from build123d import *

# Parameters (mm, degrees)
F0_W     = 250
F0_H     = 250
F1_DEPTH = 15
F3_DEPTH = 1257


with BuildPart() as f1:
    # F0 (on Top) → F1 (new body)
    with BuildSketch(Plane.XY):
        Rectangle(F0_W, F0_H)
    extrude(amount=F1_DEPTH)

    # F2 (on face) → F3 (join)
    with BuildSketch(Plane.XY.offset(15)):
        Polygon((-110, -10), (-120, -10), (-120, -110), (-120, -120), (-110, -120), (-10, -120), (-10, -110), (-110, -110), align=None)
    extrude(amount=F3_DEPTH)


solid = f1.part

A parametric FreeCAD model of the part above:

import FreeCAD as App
import Part
import Sketcher
from FreeCAD import Vector
Q = App.Units.Quantity

doc = App.newDocument("Part")
body = doc.addObject("PartDesign::Body", "Body")

# Sketch on XY plane
sketch1 = body.newObject("Sketcher::SketchObject", "Sketch")
sketch1.AttachmentSupport = (doc.getObject("XY_Plane"), [""])
sketch1.MapMode = "FlatFace"
sketch1.addGeometry([
    Part.LineSegment(Vector(-125, 125, 0), Vector(-125, -125, 0)),
    Part.LineSegment(Vector(-125, -125, 0), Vector(125, -125, 0)),
    Part.LineSegment(Vector(125, -125, 0), Vector(125, 125, 0)),
    Part.LineSegment(Vector(125, 125, 0), Vector(-125, 125, 0)),
], False)
sketch1.addConstraint([
    Sketcher.Constraint("Coincident", 0, 2, 1, 1),
    Sketcher.Constraint("Coincident", 1, 2, 2, 1),
    Sketcher.Constraint("Coincident", 2, 2, 3, 1),
    Sketcher.Constraint("Coincident", 3, 2, 0, 1),
    Sketcher.Constraint("Vertical", 0),
    Sketcher.Constraint("Horizontal", 1),
    Sketcher.Constraint("Vertical", 2),
    Sketcher.Constraint("Horizontal", 3),
    Sketcher.Constraint("Symmetric", 0, 2, 2, 2, -1, 1),
    Sketcher.Constraint("Equal", 3, 0),
    Sketcher.Constraint("DistanceX", 1, 1, 1, 2, Q("250 mm")),
])
pad1 = body.newObject("PartDesign::Pad", "Pad")
pad1.Profile = sketch1
pad1.Length = 15

# Sketch on XY plane
sketch2 = body.newObject("Sketcher::SketchObject", "Sketch001")
sketch2.AttachmentSupport = (doc.getObject("XY_Plane"), [""])
sketch2.MapMode = "FlatFace"
sketch2.AttachmentOffset = App.Placement(Vector(0, 0, 15), App.Rotation())
sketch2.addGeometry([
    Part.LineSegment(Vector(-110, -10, 0), Vector(-120, -10, 0)),  # 0
    Part.LineSegment(Vector(-120, -10, 0), Vector(-120, -120, 0)),  # 1
    Part.LineSegment(Vector(-120, -120, 0), Vector(-10, -120, 0)),  # 2
    Part.LineSegment(Vector(-10, -120, 0), Vector(-10, -110, 0)),  # 3
    Part.LineSegment(Vector(-10, -110, 0), Vector(-110, -110, 0)),  # 4
    Part.LineSegment(Vector(-110, -110, 0), Vector(-110, -10, 0)),  # 5
], False)
sketch2.addConstraint([
    Sketcher.Constraint("Coincident", 0, 2, 1, 1),
    Sketcher.Constraint("Coincident", 1, 2, 2, 1),
    Sketcher.Constraint("Coincident", 2, 2, 3, 1),
    Sketcher.Constraint("Coincident", 3, 2, 4, 1),
    Sketcher.Constraint("Coincident", 4, 2, 5, 1),
    Sketcher.Constraint("Coincident", 5, 2, 0, 1),
    Sketcher.Constraint("Horizontal", 0),
    Sketcher.Constraint("Vertical", 1),
    Sketcher.Constraint("Horizontal", 2),
    Sketcher.Constraint("Vertical", 3),
    Sketcher.Constraint("Horizontal", 4),
    Sketcher.Constraint("Vertical", 5),
    Sketcher.Constraint("Equal", 2, 1),
    Sketcher.Constraint("Equal", 0, 3),
    Sketcher.Constraint("DistanceX", 0, 2, 0, 1, Q("10 mm")),
    Sketcher.Constraint("DistanceX", 2, 1, 2, 2, Q("110 mm")),
    Sketcher.Constraint("DistanceX", 0, 2, -1, 1, Q("120 mm")),
    Sketcher.Constraint("DistanceY", 0, 2, -1, 1, Q("10 mm")),
])
pad2 = body.newObject("PartDesign::Pad", "Pad001")
pad2.Profile = sketch2
pad2.Length = 1257

doc.recompute()
